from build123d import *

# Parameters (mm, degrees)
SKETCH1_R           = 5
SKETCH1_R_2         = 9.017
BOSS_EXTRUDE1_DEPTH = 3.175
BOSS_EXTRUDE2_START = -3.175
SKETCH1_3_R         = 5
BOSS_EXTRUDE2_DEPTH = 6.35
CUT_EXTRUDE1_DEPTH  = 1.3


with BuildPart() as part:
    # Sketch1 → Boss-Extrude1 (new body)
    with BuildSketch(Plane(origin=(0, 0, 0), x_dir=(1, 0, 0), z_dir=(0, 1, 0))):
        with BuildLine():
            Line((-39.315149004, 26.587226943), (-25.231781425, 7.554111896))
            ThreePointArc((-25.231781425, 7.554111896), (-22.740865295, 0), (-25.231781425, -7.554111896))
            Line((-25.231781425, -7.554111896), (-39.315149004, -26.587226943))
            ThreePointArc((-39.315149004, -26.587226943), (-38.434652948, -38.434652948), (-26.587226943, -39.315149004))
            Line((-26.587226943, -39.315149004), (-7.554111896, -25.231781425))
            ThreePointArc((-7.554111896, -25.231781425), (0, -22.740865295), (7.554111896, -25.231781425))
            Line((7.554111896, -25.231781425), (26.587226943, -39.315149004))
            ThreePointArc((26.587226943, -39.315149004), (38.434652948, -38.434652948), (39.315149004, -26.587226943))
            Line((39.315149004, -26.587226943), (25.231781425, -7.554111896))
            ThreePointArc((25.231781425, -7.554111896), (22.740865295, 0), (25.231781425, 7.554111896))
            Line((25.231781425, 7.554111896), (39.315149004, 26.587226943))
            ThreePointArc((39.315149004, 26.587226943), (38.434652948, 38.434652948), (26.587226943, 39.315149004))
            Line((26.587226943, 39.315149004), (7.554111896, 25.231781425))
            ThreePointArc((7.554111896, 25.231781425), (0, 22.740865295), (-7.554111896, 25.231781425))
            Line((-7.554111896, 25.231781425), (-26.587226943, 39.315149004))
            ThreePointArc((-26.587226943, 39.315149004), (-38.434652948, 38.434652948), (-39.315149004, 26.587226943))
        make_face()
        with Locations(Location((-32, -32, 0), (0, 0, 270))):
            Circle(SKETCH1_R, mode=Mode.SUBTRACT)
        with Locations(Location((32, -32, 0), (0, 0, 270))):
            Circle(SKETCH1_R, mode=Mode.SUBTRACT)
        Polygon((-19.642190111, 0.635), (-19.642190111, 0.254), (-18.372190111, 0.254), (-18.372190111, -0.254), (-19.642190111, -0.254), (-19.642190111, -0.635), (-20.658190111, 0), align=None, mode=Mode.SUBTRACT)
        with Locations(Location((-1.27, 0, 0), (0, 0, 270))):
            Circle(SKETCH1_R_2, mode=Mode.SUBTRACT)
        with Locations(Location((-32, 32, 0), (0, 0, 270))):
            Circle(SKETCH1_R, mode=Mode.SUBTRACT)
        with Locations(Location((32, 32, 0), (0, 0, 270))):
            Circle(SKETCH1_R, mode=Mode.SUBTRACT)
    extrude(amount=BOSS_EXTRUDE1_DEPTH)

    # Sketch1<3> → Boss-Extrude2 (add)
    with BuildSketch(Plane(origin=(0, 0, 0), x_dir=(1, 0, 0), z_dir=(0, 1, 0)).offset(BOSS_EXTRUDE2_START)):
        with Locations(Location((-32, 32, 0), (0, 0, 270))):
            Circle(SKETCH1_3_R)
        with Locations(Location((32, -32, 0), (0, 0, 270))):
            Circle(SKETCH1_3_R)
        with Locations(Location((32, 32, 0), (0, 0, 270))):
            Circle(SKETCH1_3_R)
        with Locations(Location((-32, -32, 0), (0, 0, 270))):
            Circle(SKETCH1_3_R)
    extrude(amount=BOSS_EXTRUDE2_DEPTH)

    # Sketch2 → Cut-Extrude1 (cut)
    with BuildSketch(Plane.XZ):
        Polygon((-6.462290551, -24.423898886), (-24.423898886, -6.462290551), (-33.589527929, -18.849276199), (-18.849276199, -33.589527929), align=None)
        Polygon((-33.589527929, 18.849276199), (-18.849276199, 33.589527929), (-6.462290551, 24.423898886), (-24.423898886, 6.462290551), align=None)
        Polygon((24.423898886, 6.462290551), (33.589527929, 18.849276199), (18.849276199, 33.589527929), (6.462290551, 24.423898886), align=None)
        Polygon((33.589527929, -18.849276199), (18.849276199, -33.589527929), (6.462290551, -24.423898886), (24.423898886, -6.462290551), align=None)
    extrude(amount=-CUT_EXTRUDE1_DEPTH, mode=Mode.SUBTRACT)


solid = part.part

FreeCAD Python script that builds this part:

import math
import FreeCAD as App
import Part
import Sketcher
Q = App.Units.Quantity

doc = App.newDocument("Part")
body = doc.addObject("PartDesign::Body", "Body")

# Sketch on XZ plane
sketch1 = doc.addObject("Sketcher::SketchObject", "Sketch")
body.addObject(sketch1)
sketch1.AttachmentSupport = (doc.XZ_Plane, [""])
sketch1.MapMode = "FlatFace"
sketch1.addGeometry([
    Part.LineSegment(App.Vector(-39.315149, -26.587227, 0), App.Vector(-25.231781, -7.554112, 0)),  # 0
    Part.ArcOfCircle(Part.Circle(App.Vector(-35.440865, 0, 0), App.Vector(0, 0, 1), 12.7), math.radians(-36.499228), math.radians(36.499228)),  # 1
    Part.LineSegment(App.Vector(-25.231781, 7.554112, 0), App.Vector(-39.315149, 26.587227, 0)),  # 2
    Part.ArcOfCircle(Part.Circle(App.Vector(-32, 32, 0), App.Vector(0, 0, 1), 9.099973), math.radians(53.500772), math.radians(216.499228)),  # 3
    Part.LineSegment(App.Vector(-26.587227, 39.315149, 0), App.Vector(-7.554112, 25.231781, 0)),  # 4
    Part.ArcOfCircle(Part.Circle(App.Vector(0, 35.440865, 0), App.Vector(0, 0, 1), 12.7), math.radians(-126.499228), math.radians(-53.500772)),  # 5
    Part.LineSegment(App.Vector(7.554112, 25.231781, 0), App.Vector(26.587227, 39.315149, 0)),  # 6
    Part.ArcOfCircle(Part.Circle(App.Vector(32, 32, 0), App.Vector(0, 0, 1), 9.099973), math.radians(-36.499228), math.radians(126.499228)),  # 7
    Part.LineSegment(App.Vector(39.315149, 26.587227, 0), App.Vector(25.231781, 7.554112, 0)),  # 8
    Part.ArcOfCircle(Part.Circle(App.Vector(35.440865, 0, 0), App.Vector(0, 0, 1), 12.7), math.radians(143.500772), math.radians(216.499228)),  # 9
    Part.LineSegment(App.Vector(25.231781, -7.554112, 0), App.Vector(39.315149, -26.587227, 0)),  # 10
    Part.ArcOfCircle(Part.Circle(App.Vector(32, -32, 0), App.Vector(0, 0, 1), 9.099973), math.radians(-126.499228), math.radians(36.499228)),  # 11
    Part.LineSegment(App.Vector(26.587227, -39.315149, 0), App.Vector(7.554112, -25.231781, 0)),  # 12
    Part.ArcOfCircle(Part.Circle(App.Vector(0, -35.440865, 0), App.Vector(0, 0, 1), 12.7), math.radians(53.500772), math.radians(126.499228)),  # 13
    Part.LineSegment(App.Vector(-7.554112, -25.231781, 0), App.Vector(-26.587227, -39.315149, 0)),  # 14
    Part.ArcOfCircle(Part.Circle(App.Vector(-32, -32, 0), App.Vector(0, 0, 1), 9.099973), math.radians(143.500772), math.radians(306.499228)),  # 15
    Part.Circle(App.Vector(-32, 32, 0), App.Vector(0, 0, 1), 5),  # 16
    Part.Circle(App.Vector(32, 32, 0), App.Vector(0, 0, 1), 5),  # 17
    Part.LineSegment(App.Vector(-20.65819, 0, 0), App.Vector(-19.64219, -0.635, 0)),  # 18
    Part.LineSegment(App.Vector(-19.64219, -0.635, 0), App.Vector(-19.64219, -0.254, 0)),  # 19
    Part.LineSegment(App.Vector(-19.64219, -0.254, 0), App.Vector(-18.37219, -0.254, 0)),  # 20
    Part.LineSegment(App.Vector(-18.37219, -0.254, 0), App.Vector(-18.37219, 0.254, 0)),  # 21
    Part.LineSegment(App.Vector(-18.37219, 0.254, 0), App.Vector(-19.64219, 0.254, 0)),  # 22
    Part.LineSegment(App.Vector(-19.64219, 0.254, 0), App.Vector(-19.64219, 0.635, 0)),  # 23
    Part.LineSegment(App.Vector(-19.64219, 0.635, 0), App.Vector(-20.65819, 0, 0)),  # 24
    Part.Circle(App.Vector(-1.27, 0, 0), App.Vector(0, 0, 1), 9.017),  # 25
    Part.Circle(App.Vector(-32, -32, 0), App.Vector(0, 0, 1), 5),  # 26
    Part.Circle(App.Vector(32, -32, 0), App.Vector(0, 0, 1), 5),  # 27
], False)
sketch1.addConstraint([
    Sketcher.Constraint("Tangent", 0, 2, 1, 1),
    Sketcher.Constraint("Tangent", 1, 2, 2, 1),
    Sketcher.Constraint("Tangent", 2, 2, 3, 2),
    Sketcher.Constraint("Tangent", 3, 1, 4, 1),
    Sketcher.Constraint("Tangent", 4, 2, 5, 1),
    Sketcher.Constraint("Tangent", 5, 2, 6, 1),
    Sketcher.Constraint("Tangent", 6, 2, 7, 2),
    Sketcher.Constraint("Tangent", 7, 1, 8, 1),
    Sketcher.Constraint("Tangent", 8, 2, 9, 1),
    Sketcher.Constraint("Tangent", 9, 2, 10, 1),
    Sketcher.Constraint("Tangent", 10, 2, 11, 2),
    Sketcher.Constraint("Tangent", 11, 1, 12, 1),
    Sketcher.Constraint("Tangent", 12, 2, 13, 1),
    Sketcher.Constraint("Tangent", 13, 2, 14, 1),
    Sketcher.Constraint("Tangent", 14, 2, 15, 2),
    Sketcher.Constraint("Tangent", 15, 1, 0, 1),
    Sketcher.Constraint("Coincident", 18, 2, 19, 1),
    Sketcher.Constraint("Coincident", 19, 2, 20, 1),
    Sketcher.Constraint("Coincident", 20, 2, 21, 1),
    Sketcher.Constraint("Coincident", 21, 2, 22, 1),
    Sketcher.Constraint("Coincident", 22, 2, 23, 1),
    Sketcher.Constraint("Coincident", 23, 2, 24, 1),
    Sketcher.Constraint("Coincident", 24, 2, 18, 1),
    Sketcher.Constraint("Vertical", 19),
    Sketcher.Constraint("Horizontal", 20),
    Sketcher.Constraint("Vertical", 21),
    Sketcher.Constraint("Horizontal", 22),
    Sketcher.Constraint("Vertical", 23),
    Sketcher.Constraint("Coincident", 16, 3, 3, 3),
    Sketcher.Constraint("Coincident", 17, 3, 7, 3),
    Sketcher.Constraint("Coincident", 26, 3, 15, 3),
    Sketcher.Constraint("Coincident", 27, 3, 11, 3),
    Sketcher.Constraint("Equal", 1, 5),
    Sketcher.Constraint("Equal", 3, 7),
    Sketcher.Constraint("Equal", 5, 9),
    Sketcher.Constraint("Equal", 7, 11),
    Sketcher.Constraint("Equal", 9, 13),
    Sketcher.Constraint("Equal", 11, 15),
    Sketcher.Constraint("Equal", 16, 17),
    Sketcher.Constraint("Equal", 17, 26),
    Sketcher.Constraint("Equal", 26, 27),
    Sketcher.Constraint("Symmetric", 1, 3, 9, 3, -1, 1),
    Sketcher.Constraint("Symmetric", 3, 3, 11, 3, -1, 1),
    Sketcher.Constraint("Symmetric", 5, 3, 13, 3, -1, 1),
    Sketcher.Constraint("Symmetric", 7, 3, 15, 3, -1, 1),
    Sketcher.Constraint("Symmetric", 3, 3, 7, 3, -2),
    Sketcher.Constraint("Symmetric", 19, 2, 22, 2, -1),
    Sketcher.Constraint("PointOnObject", 1, 3, -1),
    Sketcher.Constraint("PointOnObject", 5, 3, -2),
    Sketcher.Constraint("PointOnObject", 25, 3, -1),
    Sketcher.Constraint("PointOnObject", 24, 2, -1),
    Sketcher.Constraint("Perpendicular", 0, 4),
    Sketcher.Constraint("Equal", 19, 23),
    Sketcher.Constraint("Equal", 2, 4),
    Sketcher.Constraint("Radius", 1, Q("0.5 in")),
    Sketcher.Constraint("Diameter", 25, Q("0.71 in")),
    Sketcher.Constraint("DistanceX", 20, 1, 20, 2, Q("0.05 in")),
    Sketcher.Constraint("DistanceY", 21, 1, 21, 2, Q("0.02 in")),
    Sketcher.Constraint("Diameter", 16, 10.0),
    Sketcher.Constraint("DistanceY", 19, 1, 19, 2, Q("0.015 in")),
    Sketcher.Constraint("DistanceX", 25, 3, -1, 1, Q("0.05 in")),
    Sketcher.Constraint("DistanceX", 24, 2, 19, 2, Q("0.04 in")),
    Sketcher.Constraint("Radius", 3, 9.099973),
    Sketcher.Constraint("DistanceX", 3, 3, -1, 1, 32.0),
    Sketcher.Constraint("Distance", 0, 23.677008),
    Sketcher.Constraint("DistanceX", 18, 2, -1, 1, 19.64219),
])
pad1 = doc.addObject("PartDesign::Pad", "Pad")
body.addObject(pad1)
pad1.Profile = sketch1
pad1.Length = Q("0.125 in")
pad1.Reversed = True

# Sketch on XZ plane
sketch2 = doc.addObject("Sketcher::SketchObject", "Sketch001")
body.addObject(sketch2)
sketch2.AttachmentSupport = (doc.XZ_Plane, [""])
sketch2.MapMode = "FlatFace"
sketch2.AttachmentOffset = App.Placement(App.Vector(0, 0, 0.125 * 25.4), App.Rotation())
sketch2.addGeometry([
    Part.Circle(App.Vector(-32, -32, 0), App.Vector(0, 0, 1), 5),
    Part.Circle(App.Vector(32, 32, 0), App.Vector(0, 0, 1), 5),
    Part.Circle(App.Vector(32, -32, 0), App.Vector(0, 0, 1), 5),
    Part.Circle(App.Vector(-32, 32, 0), App.Vector(0, 0, 1), 5),
], False)
sketch2.addConstraint([
    Sketcher.Constraint("Equal", 0, 1),
    Sketcher.Constraint("Equal", 1, 2),
    Sketcher.Constraint("Equal", 2, 3),
    Sketcher.Constraint("Symmetric", 0, 3, 1, 3, -1, 1),
    Sketcher.Constraint("Symmetric", 2, 3, 3, 3, -1, 1),
    Sketcher.Constraint("Symmetric", 0, 3, 2, 3, -2),
    Sketcher.Constraint("Diameter", 0, 10.0),
    Sketcher.Constraint("DistanceX", 0, 3, -1, 1, 32.0),
    Sketcher.Constraint("DistanceY", 0, 3, -1, 1, 32.0),
])
pad2 = doc.addObject("PartDesign::Pad", "Pad001")
body.addObject(pad2)
pad2.Profile = sketch2
pad2.Length = Q("0.25 in")
pad2.Reversed = True

# Sketch on XZ plane
sketch3 = doc.addObject("Sketcher::SketchObject", "Sketch002")
body.addObject(sketch3)
sketch3.AttachmentSupport = (doc.XZ_Plane, [""])
sketch3.MapMode = "FlatFace"
sketch3.addGeometry([
    Part.LineSegment(App.Vector(-6.462291, -24.423899, 0), App.Vector(-24.423899, -6.462291, 0)),  # 0
    Part.LineSegment(App.Vector(-24.423899, -6.462291, 0), App.Vector(-33.589528, -18.849276, 0)),  # 1
    Part.LineSegment(App.Vector(-33.589528, -18.849276, 0), App.Vector(-18.849276, -33.589528, 0)),  # 2
    Part.LineSegment(App.Vector(-18.849276, -33.589528, 0), App.Vector(-6.462291, -24.423899, 0)),  # 3
    Part.LineSegment(App.Vector(-18.849276, 33.589528, 0), App.Vector(-33.589528, 18.849276, 0)),  # 4
    Part.LineSegment(App.Vector(-33.589528, 18.849276, 0), App.Vector(-24.423899, 6.462291, 0)),  # 5
    Part.LineSegment(App.Vector(-24.423899, 6.462291, 0), App.Vector(-6.462291, 24.423899, 0)),  # 6
    Part.LineSegment(App.Vector(-6.462291, 24.423899, 0), App.Vector(-18.849276, 33.589528, 0)),  # 7
    Part.LineSegment(App.Vector(24.423899, 6.462291, 0), App.Vector(33.589528, 18.849276, 0)),  # 8
    Part.LineSegment(App.Vector(33.589528, 18.849276, 0), App.Vector(18.849276, 33.589528, 0)),  # 9
    Part.LineSegment(App.Vector(18.849276, 33.589528, 0), App.Vector(6.462291, 24.423899, 0)),  # 10
    Part.LineSegment(App.Vector(6.462291, 24.423899, 0), App.Vector(24.423899, 6.462291, 0)),  # 11
    Part.LineSegment(App.Vector(18.849276, -33.589528, 0), App.Vector(33.589528, -18.849276, 0)),  # 12
    Part.LineSegment(App.Vector(33.589528, -18.849276, 0), App.Vector(24.423899, -6.462291, 0)),  # 13
    Part.LineSegment(App.Vector(24.423899, -6.462291, 0), App.Vector(6.462291, -24.423899, 0)),  # 14
    Part.LineSegment(App.Vector(6.462291, -24.423899, 0), App.Vector(18.849276, -33.589528, 0)),  # 15
], False)
sketch3.addConstraint([
    Sketcher.Constraint("Coincident", 0, 2, 1, 1),
    Sketcher.Constraint("Coincident", 1, 2, 2, 1),
    Sketcher.Constraint("Coincident", 2, 2, 3, 1),
    Sketcher.Constraint("Coincident", 3, 2, 0, 1),
    Sketcher.Constraint("Coincident", 4, 2, 5, 1),
    Sketcher.Constraint("Coincident", 5, 2, 6, 1),
    Sketcher.Constraint("Coincident", 6, 2, 7, 1),
    Sketcher.Constraint("Coincident", 7, 2, 4, 1),
    Sketcher.Constraint("Coincident", 8, 2, 9, 1),
    Sketcher.Constraint("Coincident", 9, 2, 10, 1),
    Sketcher.Constraint("Coincident", 10, 2, 11, 1),
    Sketcher.Constraint("Coincident", 11, 2, 8, 1),
    Sketcher.Constraint("Coincident", 12, 2, 13, 1),
    Sketcher.Constraint("Coincident", 13, 2, 14, 1),
    Sketcher.Constraint("Coincident", 14, 2, 15, 1),
    Sketcher.Constraint("Coincident", 15, 2, 12, 1),
    Sketcher.Constraint("Symmetric", 1, 2, 8, 2, -1, 1),
    Sketcher.Constraint("Symmetric", 2, 2, 9, 2, -1, 1),
    Sketcher.Constraint("Symmetric", 3, 2, 10, 2, -1, 1),
    Sketcher.Constraint("Symmetric", 0, 2, 11, 2, -1, 1),
    Sketcher.Constraint("Symmetric", 4, 2, 12, 2, -1, 1),
    Sketcher.Constraint("Symmetric", 5, 2, 13, 2, -1, 1),
    Sketcher.Constraint("Symmetric", 6, 2, 14, 2, -1, 1),
    Sketcher.Constraint("Symmetric", 7, 2, 15, 2, -1, 1),
    Sketcher.Constraint("Symmetric", 4, 2, 8, 2, -2),
    Sketcher.Constraint("Symmetric", 7, 2, 9, 2, -2),
    Sketcher.Constraint("Symmetric", 6, 2, 10, 2, -2),
    Sketcher.Constraint("Symmetric", 5, 2, 11, 2, -2),
    Sketcher.Constraint("Parallel", 0, 2),
    Sketcher.Constraint("Perpendicular", 2, 4),
    Sketcher.Constraint("Perpendicular", 3, 5),
    Sketcher.Constraint("DistanceX", 0, 2, -1, 1, 24.423899),
    Sketcher.Constraint("DistanceY", 3, 2, -1, 1, 24.423899),
    Sketcher.Constraint("Distance", 0, 25.40155),
    Sketcher.Constraint("Distance", 1, 15.409288),
    Sketcher.Constraint("DistanceX", 1, 2, 0, 2, 9.165629),
])
pocket1 = doc.addObject("PartDesign::Pocket", "Pocket")
body.addObject(pocket1)
pocket1.Profile = sketch3
pocket1.Length = 1.3

doc.recompute()
